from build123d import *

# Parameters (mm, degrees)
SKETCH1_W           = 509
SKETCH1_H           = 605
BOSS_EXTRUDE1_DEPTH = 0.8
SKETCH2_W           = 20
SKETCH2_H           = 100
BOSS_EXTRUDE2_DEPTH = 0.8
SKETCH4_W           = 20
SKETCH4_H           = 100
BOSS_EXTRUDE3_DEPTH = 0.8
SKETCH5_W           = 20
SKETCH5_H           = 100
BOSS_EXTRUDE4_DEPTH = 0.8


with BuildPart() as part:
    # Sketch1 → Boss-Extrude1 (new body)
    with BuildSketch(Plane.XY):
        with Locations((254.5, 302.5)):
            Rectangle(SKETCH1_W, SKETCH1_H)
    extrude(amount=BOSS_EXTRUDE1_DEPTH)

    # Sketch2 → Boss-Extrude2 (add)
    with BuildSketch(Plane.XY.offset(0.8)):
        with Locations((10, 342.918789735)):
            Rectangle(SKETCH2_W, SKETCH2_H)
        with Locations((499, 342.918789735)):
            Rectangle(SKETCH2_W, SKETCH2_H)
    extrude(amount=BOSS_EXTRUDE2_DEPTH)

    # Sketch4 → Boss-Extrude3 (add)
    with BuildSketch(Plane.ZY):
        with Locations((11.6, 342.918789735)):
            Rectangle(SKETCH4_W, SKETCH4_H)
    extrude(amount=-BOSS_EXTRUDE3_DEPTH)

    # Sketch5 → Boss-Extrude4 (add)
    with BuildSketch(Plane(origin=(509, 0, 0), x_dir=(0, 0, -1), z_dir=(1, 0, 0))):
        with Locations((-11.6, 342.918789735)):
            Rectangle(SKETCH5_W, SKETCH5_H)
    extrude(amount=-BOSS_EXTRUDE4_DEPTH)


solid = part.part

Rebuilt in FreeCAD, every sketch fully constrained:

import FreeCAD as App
import Part
import Sketcher
from FreeCAD import Vector

doc = App.newDocument("Part")
params = doc.addObject("Spreadsheet::Sheet", "Params")
for row, (alias, value) in enumerate([
    ("sketch1_width", "509 mm"),
    ("sketch1_height", "605 mm"),
    ("pad1_length", "0.8 mm"),
    ("sketch2_width", "20 mm"),
    ("sketch2_height", "100 mm"),
    ("pad2_length", "0.8 mm"),
    ("sketch3_width", "100 mm"),
    ("sketch3_height", "20 mm"),
    ("pad3_length", "0.8 mm"),
    ("sketch4_width", "100 mm"),
    ("sketch4_height", "20 mm"),
    ("pad4_length", "0.8 mm"),
], start=1):
    params.set(f"A{row}", alias)
    params.set(f"B{row}", "=" + value)
    params.setAlias(f"B{row}", alias)

body = doc.addObject("PartDesign::Body", "Body")

# Sketch on XY plane
sketch1 = body.newObject("Sketcher::SketchObject", "Sketch")
sketch1.AttachmentSupport = (doc.getObject("XY_Plane"), [""])
sketch1.MapMode = "FlatFace"
sketch1.addGeometry(Part.LineSegment(Vector(0, 605, 0), Vector(0, 0, 0)), False)
sketch1.addGeometry(Part.LineSegment(Vector(0, 0, 0), Vector(509, 0, 0)), False)
sketch1.addGeometry(Part.LineSegment(Vector(509, 0, 0), Vector(509, 605, 0)), False)
sketch1.addGeometry(Part.LineSegment(Vector(509, 605, 0), Vector(0, 605, 0)), False)
sketch1.addConstraint(Sketcher.Constraint("Coincident", 0, 2, 1, 1))
sketch1.addConstraint(Sketcher.Constraint("Coincident", 1, 2, 2, 1))
sketch1.addConstraint(Sketcher.Constraint("Coincident", 2, 2, 3, 1))
sketch1.addConstraint(Sketcher.Constraint("Coincident", 3, 2, 0, 1))
sketch1.addConstraint(Sketcher.Constraint("Vertical", 0))
sketch1.addConstraint(Sketcher.Constraint("Horizontal", 1))
sketch1.addConstraint(Sketcher.Constraint("Vertical", 2))
sketch1.addConstraint(Sketcher.Constraint("Horizontal", 3))
sketch1.addConstraint(Sketcher.Constraint("Coincident", 0, 2, -1, 1))
sketch1.addConstraint(Sketcher.Constraint("DistanceX", 1, 1, 1, 2, 509.0))
sketch1.addConstraint(Sketcher.Constraint("DistanceY", 0, 2, 0, 1, 605.0))
sketch1.setExpression("Constraints[9]", "Params.sketch1_width")
sketch1.setExpression("Constraints[10]", "Params.sketch1_height")
pad1 = body.newObject("PartDesign::Pad", "Pad")
pad1.Profile = sketch1
pad1.setExpression("Length", "Params.pad1_length")

# Sketch on XY plane
sketch2 = body.newObject("Sketcher::SketchObject", "Sketch001")
sketch2.AttachmentSupport = (doc.getObject("XY_Plane"), [""])
sketch2.MapMode = "FlatFace"
sketch2.AttachmentOffset = App.Placement(Vector(0, 0, 0.8), App.Rotation())
sketch2.addGeometry(Part.LineSegment(Vector(0, 392.91879, 0), Vector(0, 292.91879, 0)), False)
sketch2.addGeometry(Part.LineSegment(Vector(0, 292.91879, 0), Vector(20, 292.91879, 0)), False)
sketch2.addGeometry(Part.LineSegment(Vector(20, 292.91879, 0), Vector(20, 392.91879, 0)), False)
sketch2.addGeometry(Part.LineSegment(Vector(20, 392.91879, 0), Vector(0, 392.91879, 0)), False)
sketch2.addGeometry(Part.LineSegment(Vector(489, 392.91879, 0), Vector(489, 292.91879, 0)), False)
sketch2.addGeometry(Part.LineSegment(Vector(489, 292.91879, 0), Vector(509, 292.91879, 0)), False)
sketch2.addGeometry(Part.LineSegment(Vector(509, 292.91879, 0), Vector(509, 392.91879, 0)), False)
sketch2.addGeometry(Part.LineSegment(Vector(509, 392.91879, 0), Vector(489, 392.91879, 0)), False)
sketch2.addConstraint(Sketcher.Constraint("Coincident", 0, 2, 1, 1))
sketch2.addConstraint(Sketcher.Constraint("Coincident", 1, 2, 2, 1))
sketch2.addConstraint(Sketcher.Constraint("Coincident", 2, 2, 3, 1))
sketch2.addConstraint(Sketcher.Constraint("Coincident", 3, 2, 0, 1))
sketch2.addConstraint(Sketcher.Constraint("Coincident", 4, 2, 5, 1))
sketch2.addConstraint(Sketcher.Constraint("Coincident", 5, 2, 6, 1))
sketch2.addConstraint(Sketcher.Constraint("Coincident", 6, 2, 7, 1))
sketch2.addConstraint(Sketcher.Constraint("Coincident", 7, 2, 4, 1))
sketch2.addConstraint(Sketcher.Constraint("Vertical", 0))
sketch2.addConstraint(Sketcher.Constraint("Horizontal", 1))
sketch2.addConstraint(Sketcher.Constraint("Vertical", 2))
sketch2.addConstraint(Sketcher.Constraint("Horizontal", 3))
sketch2.addConstraint(Sketcher.Constraint("Vertical", 4))
sketch2.addConstraint(Sketcher.Constraint("Horizontal", 5))
sketch2.addConstraint(Sketcher.Constraint("Vertical", 6))
sketch2.addConstraint(Sketcher.Constraint("Horizontal", 7))
sketch2.addConstraint(Sketcher.Constraint("PointOnObject", 0, 2, -2))
sketch2.addConstraint(Sketcher.Constraint("Horizontal", 1, 2, 4, 2))
sketch2.addConstraint(Sketcher.Constraint("Horizontal", 3, 2, 6, 2))
sketch2.addConstraint(Sketcher.Constraint("Equal", 3, 5))
sketch2.addConstraint(Sketcher.Constraint("DistanceX", 1, 1, 1, 2, 20.0))
sketch2.addConstraint(Sketcher.Constraint("DistanceY", 0, 2, 0, 1, 100.0))
sketch2.addConstraint(Sketcher.Constraint("DistanceX", -1, 1, 4, 2, 489.0))
sketch2.addConstraint(Sketcher.Constraint("DistanceY", -1, 1, 0, 2, 292.91879))
sketch2.setExpression("Constraints[20]", "Params.sketch2_width")
sketch2.setExpression("Constraints[21]", "Params.sketch2_height")
pad2 = body.newObject("PartDesign::Pad", "Pad001")
pad2.Profile = sketch2
pad2.setExpression("Length", "Params.pad2_length")

# Sketch on YZ plane
sketch3 = body.newObject("Sketcher::SketchObject", "Sketch002")
sketch3.AttachmentSupport = (doc.getObject("YZ_Plane"), [""])
sketch3.MapMode = "FlatFace"
sketch3.addGeometry(Part.LineSegment(Vector(392.91879, 1.6, 0), Vector(292.91879, 1.6, 0)), False)
sketch3.addGeometry(Part.LineSegment(Vector(292.91879, 1.6, 0), Vector(292.91879, 21.6, 0)), False)
sketch3.addGeometry(Part.LineSegment(Vector(292.91879, 21.6, 0), Vector(392.91879, 21.6, 0)), False)
sketch3.addGeometry(Part.LineSegment(Vector(392.91879, 21.6, 0), Vector(392.91879, 1.6, 0)), False)
sketch3.addConstraint(Sketcher.Constraint("Coincident", 0, 2, 1, 1))
sketch3.addConstraint(Sketcher.Constraint("Coincident", 1, 2, 2, 1))
sketch3.addConstraint(Sketcher.Constraint("Coincident", 2, 2, 3, 1))
sketch3.addConstraint(Sketcher.Constraint("Coincident", 3, 2, 0, 1))
sketch3.addConstraint(Sketcher.Constraint("Horizontal", 0))
sketch3.addConstraint(Sketcher.Constraint("Vertical", 1))
sketch3.addConstraint(Sketcher.Constraint("Horizontal", 2))
sketch3.addConstraint(Sketcher.Constraint("Vertical", 3))
sketch3.addConstraint(Sketcher.Constraint("DistanceX", 0, 2, 0, 1, 100.0))
sketch3.addConstraint(Sketcher.Constraint("DistanceY", 1, 1, 1, 2, 20.0))
sketch3.addConstraint(Sketcher.Constraint("DistanceY", -1, 1, 0, 2, 1.6))
sketch3.addConstraint(Sketcher.Constraint("DistanceX", -1, 1, 0, 2, 292.91879))
sketch3.setExpression("Constraints[8]", "Params.sketch3_width")
sketch3.setExpression("Constraints[9]", "Params.sketch3_height")
pad3 = body.newObject("PartDesign::Pad", "Pad002")
pad3.Profile = sketch3
pad3.setExpression("Length", "Params.pad3_length")

# Sketch on YZ plane
sketch4 = body.newObject("Sketcher::SketchObject", "Sketch003")
sketch4.AttachmentSupport = (doc.getObject("YZ_Plane"), [""])
sketch4.MapMode = "FlatFace"
sketch4.AttachmentOffset = App.Placement(Vector(0, 0, 509), App.Rotation())
sketch4.addGeometry(Part.LineSegment(Vector(392.91879, 21.6, 0), Vector(292.91879, 21.6, 0)), False)
sketch4.addGeometry(Part.LineSegment(Vector(292.91879, 21.6, 0), Vector(292.91879, 1.6, 0)), False)
sketch4.addGeometry(Part.LineSegment(Vector(292.91879, 1.6, 0), Vector(392.91879, 1.6, 0)), False)
sketch4.addGeometry(Part.LineSegment(Vector(392.91879, 1.6, 0), Vector(392.91879, 21.6, 0)), False)
sketch4.addConstraint(Sketcher.Constraint("Coincident", 0, 2, 1, 1))
sketch4.addConstraint(Sketcher.Constraint("Coincident", 1, 2, 2, 1))
sketch4.addConstraint(Sketcher.Constraint("Coincident", 2, 2, 3, 1))
sketch4.addConstraint(Sketcher.Constraint("Coincident", 3, 2, 0, 1))
sketch4.addConstraint(Sketcher.Constraint("Horizontal", 0))
sketch4.addConstraint(Sketcher.Constraint("Vertical", 1))
sketch4.addConstraint(Sketcher.Constraint("Horizontal", 2))
sketch4.addConstraint(Sketcher.Constraint("Vertical", 3))
sketch4.addConstraint(Sketcher.Constraint("DistanceX", 0, 2, 0, 1, 100.0))
sketch4.addConstraint(Sketcher.Constraint("DistanceY", 1, 2, 1, 1, 20.0))
sketch4.addConstraint(Sketcher.Constraint("DistanceY", -1, 1, 0, 2, 21.6))
sketch4.addConstraint(Sketcher.Constraint("DistanceX", -1, 1, 0, 2, 292.91879))
sketch4.setExpression("Constraints[8]", "Params.sketch4_width")
sketch4.setExpression("Constraints[9]", "Params.sketch4_height")
pad4 = body.newObject("PartDesign::Pad", "Pad003")
pad4.Profile = sketch4
pad4.setExpression("Length", "Params.pad4_length")
pad4.Reversed = True

doc.recompute()
